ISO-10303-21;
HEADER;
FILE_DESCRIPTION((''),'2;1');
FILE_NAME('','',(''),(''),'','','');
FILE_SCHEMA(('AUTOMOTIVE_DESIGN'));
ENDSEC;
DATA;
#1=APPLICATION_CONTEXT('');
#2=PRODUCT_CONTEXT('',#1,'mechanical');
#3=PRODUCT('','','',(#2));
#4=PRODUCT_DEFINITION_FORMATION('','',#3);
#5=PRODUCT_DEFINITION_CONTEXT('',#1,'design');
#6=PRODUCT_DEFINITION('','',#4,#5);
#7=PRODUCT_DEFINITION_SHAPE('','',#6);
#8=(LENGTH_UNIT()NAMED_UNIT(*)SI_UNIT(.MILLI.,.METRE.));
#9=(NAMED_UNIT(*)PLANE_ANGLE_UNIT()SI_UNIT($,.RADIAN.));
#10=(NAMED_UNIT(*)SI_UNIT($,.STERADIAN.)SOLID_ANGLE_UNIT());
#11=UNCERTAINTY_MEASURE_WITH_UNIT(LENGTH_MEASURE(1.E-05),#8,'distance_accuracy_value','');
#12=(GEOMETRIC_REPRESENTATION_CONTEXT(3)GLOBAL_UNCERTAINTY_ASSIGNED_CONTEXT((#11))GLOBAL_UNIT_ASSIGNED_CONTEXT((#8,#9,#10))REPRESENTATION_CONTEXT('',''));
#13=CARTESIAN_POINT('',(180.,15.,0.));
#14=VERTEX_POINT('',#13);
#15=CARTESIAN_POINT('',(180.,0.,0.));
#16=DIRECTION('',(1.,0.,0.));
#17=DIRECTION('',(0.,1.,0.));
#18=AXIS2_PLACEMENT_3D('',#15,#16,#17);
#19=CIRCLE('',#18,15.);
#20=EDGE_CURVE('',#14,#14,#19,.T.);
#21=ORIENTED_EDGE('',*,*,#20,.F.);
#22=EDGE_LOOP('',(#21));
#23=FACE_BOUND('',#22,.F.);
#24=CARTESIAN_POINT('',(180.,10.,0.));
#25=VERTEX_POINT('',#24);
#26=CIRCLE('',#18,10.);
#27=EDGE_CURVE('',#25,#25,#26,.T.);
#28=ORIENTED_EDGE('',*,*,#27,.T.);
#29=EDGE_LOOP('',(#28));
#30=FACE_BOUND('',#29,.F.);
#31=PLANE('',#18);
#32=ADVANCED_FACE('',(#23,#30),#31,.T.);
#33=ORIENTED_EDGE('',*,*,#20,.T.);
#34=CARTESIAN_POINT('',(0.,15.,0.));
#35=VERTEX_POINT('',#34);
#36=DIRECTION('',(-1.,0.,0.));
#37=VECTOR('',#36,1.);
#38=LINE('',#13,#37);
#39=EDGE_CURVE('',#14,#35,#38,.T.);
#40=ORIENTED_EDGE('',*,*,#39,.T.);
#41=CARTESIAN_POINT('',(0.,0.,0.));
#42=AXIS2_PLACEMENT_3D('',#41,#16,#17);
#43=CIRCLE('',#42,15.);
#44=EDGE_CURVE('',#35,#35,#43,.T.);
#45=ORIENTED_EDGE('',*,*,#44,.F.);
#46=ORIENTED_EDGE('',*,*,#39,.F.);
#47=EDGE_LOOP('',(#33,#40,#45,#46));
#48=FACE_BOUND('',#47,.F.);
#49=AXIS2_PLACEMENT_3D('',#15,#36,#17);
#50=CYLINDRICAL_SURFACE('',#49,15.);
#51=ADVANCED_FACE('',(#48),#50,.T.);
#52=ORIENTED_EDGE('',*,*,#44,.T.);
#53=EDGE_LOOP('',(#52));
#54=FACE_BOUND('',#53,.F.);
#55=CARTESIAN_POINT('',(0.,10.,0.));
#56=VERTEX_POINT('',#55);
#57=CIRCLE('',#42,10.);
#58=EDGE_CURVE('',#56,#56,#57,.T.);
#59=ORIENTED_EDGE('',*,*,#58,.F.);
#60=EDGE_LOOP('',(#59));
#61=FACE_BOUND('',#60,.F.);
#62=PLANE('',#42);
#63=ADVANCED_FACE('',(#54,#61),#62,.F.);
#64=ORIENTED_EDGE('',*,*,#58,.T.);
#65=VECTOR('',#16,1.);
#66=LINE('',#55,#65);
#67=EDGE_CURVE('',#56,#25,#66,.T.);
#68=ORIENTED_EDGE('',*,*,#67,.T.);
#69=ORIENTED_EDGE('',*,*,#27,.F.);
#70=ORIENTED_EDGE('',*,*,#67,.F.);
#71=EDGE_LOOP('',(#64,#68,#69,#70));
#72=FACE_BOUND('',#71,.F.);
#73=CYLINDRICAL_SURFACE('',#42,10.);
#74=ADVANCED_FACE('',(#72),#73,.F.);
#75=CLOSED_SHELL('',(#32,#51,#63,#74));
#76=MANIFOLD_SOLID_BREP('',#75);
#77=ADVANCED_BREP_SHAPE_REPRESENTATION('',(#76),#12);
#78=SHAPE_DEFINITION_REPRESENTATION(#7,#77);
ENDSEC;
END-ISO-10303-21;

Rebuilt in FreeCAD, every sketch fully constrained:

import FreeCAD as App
import Part
import Sketcher
from FreeCAD import Vector
Q = App.Units.Quantity


def add_polygon(sketch, points):
    """Adds a closed chain of lines whose ends are joined by coincident constraints."""
    first, n = sketch.GeometryCount, len(points)
    for a, b in zip(points, points[1:] + points[:1]):
        sketch.addGeometry(Part.LineSegment(App.Vector(*a, 0), App.Vector(*b, 0)), False)
    for i in range(n):
        sketch.addConstraint(Sketcher.Constraint("Coincident", first + i, 2, first + (i + 1) % n, 1))

doc = App.newDocument("Part")
body = doc.addObject("PartDesign::Body", "Body")

# Sketch on XY plane
sketch1 = body.newObject("Sketcher::SketchObject", "Sketch")
sketch1.AttachmentSupport = (doc.getObject("XY_Plane"), [""])
sketch1.MapMode = "FlatFace"
add_polygon(sketch1, [(0, 15), (0, 10), (180, 10), (180, 15)])  # lines 0-3
sketch1.addConstraint([
    Sketcher.Constraint("Vertical", 0),
    Sketcher.Constraint("Horizontal", 1),
    Sketcher.Constraint("Vertical", 2),
    Sketcher.Constraint("Horizontal", 3),
    Sketcher.Constraint("PointOnObject", 0, 2, -2),
    Sketcher.Constraint("DistanceX", 1, 1, 1, 2, Q("180 mm")),
    Sketcher.Constraint("DistanceY", 0, 2, 0, 1, Q("5 mm")),
    Sketcher.Constraint("DistanceY", -1, 1, 0, 2, Q("10 mm")),
])
revolution = body.newObject("PartDesign::Revolution", "Revolution")
revolution.Profile = sketch1
revolution.ReferenceAxis = (sketch1, ["H_Axis"])
revolution.Angle = 360

doc.recompute()
